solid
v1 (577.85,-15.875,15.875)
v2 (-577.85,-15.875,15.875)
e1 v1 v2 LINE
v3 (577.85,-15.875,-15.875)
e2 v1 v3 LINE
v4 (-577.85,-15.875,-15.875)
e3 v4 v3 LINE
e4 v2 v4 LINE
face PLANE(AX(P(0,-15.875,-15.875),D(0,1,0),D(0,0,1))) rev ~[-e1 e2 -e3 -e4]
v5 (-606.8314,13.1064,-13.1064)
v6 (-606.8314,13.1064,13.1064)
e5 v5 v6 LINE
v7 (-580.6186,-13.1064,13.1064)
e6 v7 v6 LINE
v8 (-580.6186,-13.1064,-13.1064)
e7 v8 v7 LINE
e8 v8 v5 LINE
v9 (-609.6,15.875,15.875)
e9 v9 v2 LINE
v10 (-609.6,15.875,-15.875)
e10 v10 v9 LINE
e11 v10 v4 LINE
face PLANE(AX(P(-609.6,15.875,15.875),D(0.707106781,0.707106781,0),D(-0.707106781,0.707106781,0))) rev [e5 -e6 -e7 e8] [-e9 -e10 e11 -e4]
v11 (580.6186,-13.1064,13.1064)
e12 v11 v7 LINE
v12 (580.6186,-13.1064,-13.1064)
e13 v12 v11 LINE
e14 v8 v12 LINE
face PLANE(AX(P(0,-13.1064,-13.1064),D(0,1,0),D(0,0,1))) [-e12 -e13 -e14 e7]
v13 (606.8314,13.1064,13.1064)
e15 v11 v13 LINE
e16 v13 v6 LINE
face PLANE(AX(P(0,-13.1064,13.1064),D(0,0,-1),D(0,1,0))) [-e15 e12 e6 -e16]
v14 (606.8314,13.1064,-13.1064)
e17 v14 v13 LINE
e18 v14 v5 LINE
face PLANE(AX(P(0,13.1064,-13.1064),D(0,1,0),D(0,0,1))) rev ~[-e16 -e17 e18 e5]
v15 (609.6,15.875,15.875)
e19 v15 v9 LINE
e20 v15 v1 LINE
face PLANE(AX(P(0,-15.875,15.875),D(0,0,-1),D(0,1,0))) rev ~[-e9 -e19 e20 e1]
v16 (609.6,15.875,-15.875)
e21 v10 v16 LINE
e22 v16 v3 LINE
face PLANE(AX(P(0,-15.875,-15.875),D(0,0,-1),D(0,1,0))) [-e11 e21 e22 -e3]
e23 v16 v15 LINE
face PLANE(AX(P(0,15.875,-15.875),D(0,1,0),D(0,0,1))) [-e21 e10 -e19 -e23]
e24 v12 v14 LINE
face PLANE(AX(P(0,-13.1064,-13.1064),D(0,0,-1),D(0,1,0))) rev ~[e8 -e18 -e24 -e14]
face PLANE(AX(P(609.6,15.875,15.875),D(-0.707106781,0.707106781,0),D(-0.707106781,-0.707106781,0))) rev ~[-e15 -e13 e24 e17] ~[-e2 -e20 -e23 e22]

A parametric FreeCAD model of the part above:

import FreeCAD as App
import Part
import Sketcher
Q = App.Units.Quantity


def add_polygon(sketch, points):
    """Adds a closed chain of lines whose ends are joined by coincident constraints."""
    first, n = sketch.GeometryCount, len(points)
    for a, b in zip(points, points[1:] + points[:1]):
        sketch.addGeometry(Part.LineSegment(App.Vector(*a, 0), App.Vector(*b, 0)), False)
    for i in range(n):
        sketch.addConstraint(Sketcher.Constraint("Coincident", first + i, 2, first + (i + 1) % n, 1))

doc = App.newDocument("Part")
body = doc.addObject("PartDesign::Body", "Body")

sketch1 = body.newObject("Sketcher::SketchObject", "Sketch")
sketch1.AttachmentSupport = (doc.getObject("YZ_Plane"), [""])
sketch1.MapMode = "FlatFace"
add_polygon(sketch1, [(-16, 16), (-16, -16), (16, -16), (16, 16)])
add_polygon(sketch1, [(13, -13), (-13, -13), (-13, 13), (13, 13)])
sketch1.addConstraint([
    Sketcher.Constraint("Vertical", 0),
    Sketcher.Constraint("Horizontal", 1),
    Sketcher.Constraint("Vertical", 2),
    Sketcher.Constraint("Horizontal", 3),
    Sketcher.Constraint("Horizontal", 4),
    Sketcher.Constraint("Vertical", 5),
    Sketcher.Constraint("Horizontal", 6),
    Sketcher.Constraint("Vertical", 7),
    Sketcher.Constraint("Symmetric", 0, 2, 2, 2, -1, 1),
    Sketcher.Constraint("Symmetric", 4, 2, 6, 2, -1, 1),
    Sketcher.Constraint("Equal", 3, 0),
    Sketcher.Constraint("Equal", 6, 5),
    Sketcher.Constraint("DistanceX", 1, 1, 1, 2, Q("1.25 in")),
    Sketcher.Constraint("DistanceX", 4, 2, 4, 1, Q("1.032 in")),
])
pad1 = body.newObject("PartDesign::Pad", "Pad")
pad1.Profile = sketch1
pad1.Type = "TwoLengths"
pad1.Length = Q("24 in")
pad1.Length2 = Q("24 in")

sketch2 = body.newObject("Sketcher::SketchObject", "Sketch001")
sketch2.AttachmentSupport = (doc.getObject("XY_Plane"), [""])
sketch2.MapMode = "FlatFace"
sketch2.AttachmentOffset = App.Placement(App.Vector(0, 0, 0.625 * 25.4), App.Rotation())
add_polygon(sketch2, [(610, -16), (610, 16), (578, -16)])
sketch2.addConstraint([
    Sketcher.Constraint("Vertical", 0),
    Sketcher.Constraint("Horizontal", 2),
    Sketcher.Constraint("Equal", 2, 0),
    Sketcher.Constraint("DistanceX", -1, 1, 0, 2, Q("24 in")),
    Sketcher.Constraint("DistanceX", 2, 1, 2, 2, Q("1.25 in")),
    Sketcher.Constraint("DistanceY", -1, 1, 0, 2, Q("0.625 in")),
])
pocket1 = body.newObject("PartDesign::Pocket", "Pocket")
pocket1.Profile = sketch2
pocket1.Length = Q("1.25 in")
doc.recompute()

mirrored = body.newObject("PartDesign::Mirrored", "Mirrored")
mirrored.Originals = [pocket1]
mirrored.MirrorPlane = (doc.getObject("YZ_Plane"), [""])
body.Tip = mirrored

doc.recompute()
